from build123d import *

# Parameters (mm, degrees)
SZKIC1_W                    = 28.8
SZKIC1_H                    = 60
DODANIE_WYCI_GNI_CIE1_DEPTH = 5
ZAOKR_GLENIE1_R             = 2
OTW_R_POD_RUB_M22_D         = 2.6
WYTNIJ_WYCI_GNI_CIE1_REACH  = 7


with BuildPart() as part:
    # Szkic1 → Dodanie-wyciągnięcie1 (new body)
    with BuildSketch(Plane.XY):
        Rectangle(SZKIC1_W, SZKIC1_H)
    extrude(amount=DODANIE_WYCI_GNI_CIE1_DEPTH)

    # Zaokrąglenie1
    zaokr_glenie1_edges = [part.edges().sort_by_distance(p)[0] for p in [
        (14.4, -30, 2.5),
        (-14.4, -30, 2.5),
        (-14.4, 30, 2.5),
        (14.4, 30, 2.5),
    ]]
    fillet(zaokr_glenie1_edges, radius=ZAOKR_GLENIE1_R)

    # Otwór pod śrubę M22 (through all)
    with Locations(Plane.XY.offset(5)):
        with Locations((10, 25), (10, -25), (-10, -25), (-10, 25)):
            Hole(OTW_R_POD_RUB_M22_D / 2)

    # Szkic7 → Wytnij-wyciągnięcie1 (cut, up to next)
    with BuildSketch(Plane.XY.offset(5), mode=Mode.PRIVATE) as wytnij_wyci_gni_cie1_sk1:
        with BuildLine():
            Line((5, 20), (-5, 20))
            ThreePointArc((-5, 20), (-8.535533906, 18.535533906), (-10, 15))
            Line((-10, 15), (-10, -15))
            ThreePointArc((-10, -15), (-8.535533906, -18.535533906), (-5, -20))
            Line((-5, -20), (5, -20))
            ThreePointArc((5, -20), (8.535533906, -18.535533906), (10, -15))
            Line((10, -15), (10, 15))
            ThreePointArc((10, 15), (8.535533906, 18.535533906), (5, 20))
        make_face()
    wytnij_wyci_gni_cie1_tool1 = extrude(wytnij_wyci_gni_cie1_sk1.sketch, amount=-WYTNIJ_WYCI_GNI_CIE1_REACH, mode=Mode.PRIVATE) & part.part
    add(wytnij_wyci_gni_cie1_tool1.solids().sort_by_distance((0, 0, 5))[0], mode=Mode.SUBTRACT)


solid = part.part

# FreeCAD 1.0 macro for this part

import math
import FreeCAD as App
import Part
import Sketcher
Q = App.Units.Quantity


def edges_at(feature, points):
    """Names of the edges that pass closest to the given points."""
    edges = feature.Shape.Edges
    near = lambda p: min(range(len(edges)), key=lambda i: edges[i].distToShape(Part.Vertex(*p))[0])
    return sorted({f"Edge{near(p) + 1}" for p in points})


def add_polygon(sketch, points):
    """Adds a closed chain of lines whose ends are joined by coincident constraints."""
    first, n = sketch.GeometryCount, len(points)
    for a, b in zip(points, points[1:] + points[:1]):
        sketch.addGeometry(Part.LineSegment(App.Vector(*a, 0), App.Vector(*b, 0)), False)
    for i in range(n):
        sketch.addConstraint(Sketcher.Constraint("Coincident", first + i, 2, first + (i + 1) % n, 1))

doc = App.newDocument("Part")
body = doc.addObject("PartDesign::Body", "Body")

sketch1 = body.newObject("Sketcher::SketchObject", "Sketch")
sketch1.AttachmentSupport = (doc.getObject("XY_Plane"), [""])
sketch1.MapMode = "FlatFace"
add_polygon(sketch1, [(-14, 30), (-14, -30), (14, -30), (14, 30)])
sketch1.addConstraint([
    Sketcher.Constraint("Vertical", 0),
    Sketcher.Constraint("Horizontal", 1),
    Sketcher.Constraint("Vertical", 2),
    Sketcher.Constraint("Horizontal", 3),
    Sketcher.Constraint("Symmetric", 0, 2, 2, 2, -1, 1),
    Sketcher.Constraint("DistanceY", 0, 2, 0, 1, Q("60 mm")),
    Sketcher.Constraint("DistanceX", 1, 1, 1, 2, Q("28.8 mm")),
])
pad1 = body.newObject("PartDesign::Pad", "Pad")
pad1.Profile = sketch1
pad1.Length = 5
doc.recompute()

fillet = body.newObject("PartDesign::Fillet", "Fillet")
fillet.Base = (pad1, edges_at(pad1, [
    (14.4, -30, 2.5),
    (-14.4, -30, 2.5),
    (-14.4, 30, 2.5),
    (14.4, 30, 2.5),
]))
fillet.Radius = 2

sketch2 = body.newObject("Sketcher::SketchObject", "Sketch001")
sketch2.AttachmentSupport = (doc.getObject("XY_Plane"), [""])
sketch2.MapMode = "FlatFace"
sketch2.AttachmentOffset = App.Placement(App.Vector(0, 0, 5), App.Rotation())
sketch2.addGeometry([
    Part.Circle(App.Vector(10, 25, 0), App.Vector(0, 0, 1), 1.3),
    Part.Circle(App.Vector(10, -25, 0), App.Vector(0, 0, 1), 1.3),
    Part.Circle(App.Vector(-10, -25, 0), App.Vector(0, 0, 1), 1.3),
    Part.Circle(App.Vector(-10, 25, 0), App.Vector(0, 0, 1), 1.3),
], False)
sketch2.addConstraint([
    Sketcher.Constraint("Equal", 0, 1),
    Sketcher.Constraint("Equal", 1, 2),
    Sketcher.Constraint("Equal", 2, 3),
    Sketcher.Constraint("Symmetric", 0, 3, 2, 3, -1, 1),
    Sketcher.Constraint("Symmetric", 1, 3, 3, 3, -1, 1),
    Sketcher.Constraint("Symmetric", 1, 3, 2, 3, -2),
    Sketcher.Constraint("Diameter", 0, Q("2.6 mm")),
    Sketcher.Constraint("DistanceX", -1, 1, 0, 3, Q("10 mm")),
    Sketcher.Constraint("DistanceY", -1, 1, 0, 3, Q("25 mm")),
])
doc.recompute()
hole = body.newObject("PartDesign::Hole", "Hole")
hole.Profile = sketch2
hole.ThreadType = "None"
hole.Diameter = 2.6
hole.DepthType = "ThroughAll"

sketch3 = body.newObject("Sketcher::SketchObject", "Sketch002")
sketch3.AttachmentSupport = (doc.getObject("XY_Plane"), [""])
sketch3.MapMode = "FlatFace"
sketch3.AttachmentOffset = App.Placement(App.Vector(0, 0, 5), App.Rotation())
sketch3.addGeometry([
    Part.LineSegment(App.Vector(5, 20, 0), App.Vector(-5, 20, 0)),
    Part.ArcOfCircle(Part.Circle(App.Vector(-5, 15, 0), App.Vector(0, 0, 1), 5), math.radians(90), math.radians(180)),
    Part.LineSegment(App.Vector(-10, 15, 0), App.Vector(-10, -15, 0)),
    Part.ArcOfCircle(Part.Circle(App.Vector(-5, -15, 0), App.Vector(0, 0, 1), 5), math.radians(180), math.radians(270)),
    Part.LineSegment(App.Vector(-5, -20, 0), App.Vector(5, -20, 0)),
    Part.ArcOfCircle(Part.Circle(App.Vector(5, -15, 0), App.Vector(0, 0, 1), 5), math.radians(-90), math.radians(0)),
    Part.LineSegment(App.Vector(10, -15, 0), App.Vector(10, 15, 0)),
    Part.ArcOfCircle(Part.Circle(App.Vector(5, 15, 0), App.Vector(0, 0, 1), 5), math.radians(0), math.radians(90)),
], False)
sketch3.addConstraint([
    Sketcher.Constraint("Tangent", 0, 2, 1, 1),
    Sketcher.Constraint("Tangent", 1, 2, 2, 1),
    Sketcher.Constraint("Tangent", 2, 2, 3, 1),
    Sketcher.Constraint("Tangent", 3, 2, 4, 1),
    Sketcher.Constraint("Tangent", 4, 2, 5, 1),
    Sketcher.Constraint("Tangent", 5, 2, 6, 1),
    Sketcher.Constraint("Tangent", 6, 2, 7, 1),
    Sketcher.Constraint("Tangent", 7, 2, 0, 1),
    Sketcher.Constraint("Horizontal", 0),
    Sketcher.Constraint("Vertical", 2),
    Sketcher.Constraint("Horizontal", 4),
    Sketcher.Constraint("Vertical", 6),
    Sketcher.Constraint("Equal", 1, 3),
    Sketcher.Constraint("Equal", 3, 5),
    Sketcher.Constraint("Equal", 5, 7),
    Sketcher.Constraint("Symmetric", 1, 3, 5, 3, -1, 1),
    Sketcher.Constraint("Radius", 1, Q("5 mm")),
    Sketcher.Constraint("DistanceX", 0, 2, 0, 1, Q("10 mm")),
    Sketcher.Constraint("DistanceY", 2, 2, 2, 1, Q("30 mm")),
])
pocket1 = body.newObject("PartDesign::Pocket", "Pocket")
pocket1.Profile = sketch3
pocket1.Type = "UpToFirst"

doc.recompute()
